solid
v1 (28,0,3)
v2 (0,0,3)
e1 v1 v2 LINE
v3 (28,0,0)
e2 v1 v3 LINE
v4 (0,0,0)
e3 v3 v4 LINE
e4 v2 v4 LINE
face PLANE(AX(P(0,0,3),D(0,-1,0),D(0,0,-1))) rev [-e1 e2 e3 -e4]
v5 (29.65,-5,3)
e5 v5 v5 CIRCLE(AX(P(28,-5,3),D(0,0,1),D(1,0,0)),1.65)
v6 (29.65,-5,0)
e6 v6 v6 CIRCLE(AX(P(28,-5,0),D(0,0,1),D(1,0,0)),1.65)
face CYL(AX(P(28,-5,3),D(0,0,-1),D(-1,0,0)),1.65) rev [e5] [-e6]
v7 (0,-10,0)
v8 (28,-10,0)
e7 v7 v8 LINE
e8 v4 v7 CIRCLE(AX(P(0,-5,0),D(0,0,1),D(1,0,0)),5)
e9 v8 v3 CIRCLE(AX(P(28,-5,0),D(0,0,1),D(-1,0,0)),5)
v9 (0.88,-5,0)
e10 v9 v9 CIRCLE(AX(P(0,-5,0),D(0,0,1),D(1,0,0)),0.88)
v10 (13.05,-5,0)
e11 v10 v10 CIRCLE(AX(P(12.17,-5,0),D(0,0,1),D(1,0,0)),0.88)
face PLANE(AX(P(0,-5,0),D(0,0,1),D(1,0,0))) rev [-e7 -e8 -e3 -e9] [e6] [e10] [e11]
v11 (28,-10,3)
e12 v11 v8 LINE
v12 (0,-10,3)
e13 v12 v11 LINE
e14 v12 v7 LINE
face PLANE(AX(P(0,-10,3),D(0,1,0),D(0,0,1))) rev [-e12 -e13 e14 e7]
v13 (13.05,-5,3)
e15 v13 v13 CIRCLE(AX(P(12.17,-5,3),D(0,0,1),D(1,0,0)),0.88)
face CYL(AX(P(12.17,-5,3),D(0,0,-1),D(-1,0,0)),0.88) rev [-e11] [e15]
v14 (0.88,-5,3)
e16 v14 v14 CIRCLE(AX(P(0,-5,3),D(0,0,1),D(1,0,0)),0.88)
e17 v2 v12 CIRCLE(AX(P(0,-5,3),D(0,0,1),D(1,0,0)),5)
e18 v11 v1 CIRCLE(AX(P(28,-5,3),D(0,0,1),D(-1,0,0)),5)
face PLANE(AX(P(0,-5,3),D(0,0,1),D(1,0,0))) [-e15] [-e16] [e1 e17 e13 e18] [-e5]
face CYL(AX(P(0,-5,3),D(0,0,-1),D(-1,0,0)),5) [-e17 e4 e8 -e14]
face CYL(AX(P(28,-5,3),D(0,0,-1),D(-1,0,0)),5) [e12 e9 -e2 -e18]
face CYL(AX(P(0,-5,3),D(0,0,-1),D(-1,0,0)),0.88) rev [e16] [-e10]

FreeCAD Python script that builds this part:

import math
import FreeCAD as App
import Part
import Sketcher

V = App.Vector
Q = App.Units.Quantity

doc = App.newDocument("Part")
body = doc.addObject("PartDesign::Body", "Body")

# Sketch on XY plane
sketch1 = body.newObject("Sketcher::SketchObject", "Sketch")
sketch1.AttachmentSupport = (doc.getObject("XY_Plane"), [""])
sketch1.MapMode = "FlatFace"
sketch1.addGeometry([
    Part.LineSegment(V(28, 0, 0), V(0, 0, 0)),  # 0
    Part.ArcOfCircle(Part.Circle(V(0, -5, 0), V(0, 0, 1), 5), math.radians(90), math.radians(270)),  # 1
    Part.LineSegment(V(0, -10, 0), V(28, -10, 0)),  # 2
    Part.ArcOfCircle(Part.Circle(V(28, -5, 0), V(0, 0, 1), 5), math.radians(-90), math.radians(90)),  # 3
    Part.Circle(V(28, -5, 0), V(0, 0, 1), 1.6),  # 4
    Part.Circle(V(12.2, -5, 0), V(0, 0, 1), 0.9),  # 5
    Part.Circle(V(0, -5, 0), V(0, 0, 1), 0.9),  # 6
], False)
sketch1.addConstraint([
    Sketcher.Constraint("Tangent", 0, 2, 1, 1),
    Sketcher.Constraint("Tangent", 1, 2, 2, 1),
    Sketcher.Constraint("Tangent", 2, 2, 3, 1),
    Sketcher.Constraint("Tangent", 3, 2, 0, 1),
    Sketcher.Constraint("Horizontal", 0),
    Sketcher.Constraint("Horizontal", 2),
    Sketcher.Constraint("Coincident", 0, 2, -1, 1),
    Sketcher.Constraint("Coincident", 4, 3, 3, 3),
    Sketcher.Constraint("Coincident", 6, 3, 1, 3),
    Sketcher.Constraint("Equal", 5, 6),
    Sketcher.Constraint("Horizontal", 4, 3, 5, 3),
    Sketcher.Constraint("Radius", 1, Q("5 mm")),
    Sketcher.Constraint("Diameter", 4, Q("3.3 mm")),
    Sketcher.Constraint("Diameter", 5, Q("1.76 mm")),
    Sketcher.Constraint("DistanceX", 0, 2, 0, 1, Q("28 mm")),
    Sketcher.Constraint("DistanceX", -1, 1, 5, 3, Q("12.17 mm")),
])
pad1 = body.newObject("PartDesign::Pad", "Pad")
pad1.Profile = sketch1
pad1.Length = 3

doc.recompute()
